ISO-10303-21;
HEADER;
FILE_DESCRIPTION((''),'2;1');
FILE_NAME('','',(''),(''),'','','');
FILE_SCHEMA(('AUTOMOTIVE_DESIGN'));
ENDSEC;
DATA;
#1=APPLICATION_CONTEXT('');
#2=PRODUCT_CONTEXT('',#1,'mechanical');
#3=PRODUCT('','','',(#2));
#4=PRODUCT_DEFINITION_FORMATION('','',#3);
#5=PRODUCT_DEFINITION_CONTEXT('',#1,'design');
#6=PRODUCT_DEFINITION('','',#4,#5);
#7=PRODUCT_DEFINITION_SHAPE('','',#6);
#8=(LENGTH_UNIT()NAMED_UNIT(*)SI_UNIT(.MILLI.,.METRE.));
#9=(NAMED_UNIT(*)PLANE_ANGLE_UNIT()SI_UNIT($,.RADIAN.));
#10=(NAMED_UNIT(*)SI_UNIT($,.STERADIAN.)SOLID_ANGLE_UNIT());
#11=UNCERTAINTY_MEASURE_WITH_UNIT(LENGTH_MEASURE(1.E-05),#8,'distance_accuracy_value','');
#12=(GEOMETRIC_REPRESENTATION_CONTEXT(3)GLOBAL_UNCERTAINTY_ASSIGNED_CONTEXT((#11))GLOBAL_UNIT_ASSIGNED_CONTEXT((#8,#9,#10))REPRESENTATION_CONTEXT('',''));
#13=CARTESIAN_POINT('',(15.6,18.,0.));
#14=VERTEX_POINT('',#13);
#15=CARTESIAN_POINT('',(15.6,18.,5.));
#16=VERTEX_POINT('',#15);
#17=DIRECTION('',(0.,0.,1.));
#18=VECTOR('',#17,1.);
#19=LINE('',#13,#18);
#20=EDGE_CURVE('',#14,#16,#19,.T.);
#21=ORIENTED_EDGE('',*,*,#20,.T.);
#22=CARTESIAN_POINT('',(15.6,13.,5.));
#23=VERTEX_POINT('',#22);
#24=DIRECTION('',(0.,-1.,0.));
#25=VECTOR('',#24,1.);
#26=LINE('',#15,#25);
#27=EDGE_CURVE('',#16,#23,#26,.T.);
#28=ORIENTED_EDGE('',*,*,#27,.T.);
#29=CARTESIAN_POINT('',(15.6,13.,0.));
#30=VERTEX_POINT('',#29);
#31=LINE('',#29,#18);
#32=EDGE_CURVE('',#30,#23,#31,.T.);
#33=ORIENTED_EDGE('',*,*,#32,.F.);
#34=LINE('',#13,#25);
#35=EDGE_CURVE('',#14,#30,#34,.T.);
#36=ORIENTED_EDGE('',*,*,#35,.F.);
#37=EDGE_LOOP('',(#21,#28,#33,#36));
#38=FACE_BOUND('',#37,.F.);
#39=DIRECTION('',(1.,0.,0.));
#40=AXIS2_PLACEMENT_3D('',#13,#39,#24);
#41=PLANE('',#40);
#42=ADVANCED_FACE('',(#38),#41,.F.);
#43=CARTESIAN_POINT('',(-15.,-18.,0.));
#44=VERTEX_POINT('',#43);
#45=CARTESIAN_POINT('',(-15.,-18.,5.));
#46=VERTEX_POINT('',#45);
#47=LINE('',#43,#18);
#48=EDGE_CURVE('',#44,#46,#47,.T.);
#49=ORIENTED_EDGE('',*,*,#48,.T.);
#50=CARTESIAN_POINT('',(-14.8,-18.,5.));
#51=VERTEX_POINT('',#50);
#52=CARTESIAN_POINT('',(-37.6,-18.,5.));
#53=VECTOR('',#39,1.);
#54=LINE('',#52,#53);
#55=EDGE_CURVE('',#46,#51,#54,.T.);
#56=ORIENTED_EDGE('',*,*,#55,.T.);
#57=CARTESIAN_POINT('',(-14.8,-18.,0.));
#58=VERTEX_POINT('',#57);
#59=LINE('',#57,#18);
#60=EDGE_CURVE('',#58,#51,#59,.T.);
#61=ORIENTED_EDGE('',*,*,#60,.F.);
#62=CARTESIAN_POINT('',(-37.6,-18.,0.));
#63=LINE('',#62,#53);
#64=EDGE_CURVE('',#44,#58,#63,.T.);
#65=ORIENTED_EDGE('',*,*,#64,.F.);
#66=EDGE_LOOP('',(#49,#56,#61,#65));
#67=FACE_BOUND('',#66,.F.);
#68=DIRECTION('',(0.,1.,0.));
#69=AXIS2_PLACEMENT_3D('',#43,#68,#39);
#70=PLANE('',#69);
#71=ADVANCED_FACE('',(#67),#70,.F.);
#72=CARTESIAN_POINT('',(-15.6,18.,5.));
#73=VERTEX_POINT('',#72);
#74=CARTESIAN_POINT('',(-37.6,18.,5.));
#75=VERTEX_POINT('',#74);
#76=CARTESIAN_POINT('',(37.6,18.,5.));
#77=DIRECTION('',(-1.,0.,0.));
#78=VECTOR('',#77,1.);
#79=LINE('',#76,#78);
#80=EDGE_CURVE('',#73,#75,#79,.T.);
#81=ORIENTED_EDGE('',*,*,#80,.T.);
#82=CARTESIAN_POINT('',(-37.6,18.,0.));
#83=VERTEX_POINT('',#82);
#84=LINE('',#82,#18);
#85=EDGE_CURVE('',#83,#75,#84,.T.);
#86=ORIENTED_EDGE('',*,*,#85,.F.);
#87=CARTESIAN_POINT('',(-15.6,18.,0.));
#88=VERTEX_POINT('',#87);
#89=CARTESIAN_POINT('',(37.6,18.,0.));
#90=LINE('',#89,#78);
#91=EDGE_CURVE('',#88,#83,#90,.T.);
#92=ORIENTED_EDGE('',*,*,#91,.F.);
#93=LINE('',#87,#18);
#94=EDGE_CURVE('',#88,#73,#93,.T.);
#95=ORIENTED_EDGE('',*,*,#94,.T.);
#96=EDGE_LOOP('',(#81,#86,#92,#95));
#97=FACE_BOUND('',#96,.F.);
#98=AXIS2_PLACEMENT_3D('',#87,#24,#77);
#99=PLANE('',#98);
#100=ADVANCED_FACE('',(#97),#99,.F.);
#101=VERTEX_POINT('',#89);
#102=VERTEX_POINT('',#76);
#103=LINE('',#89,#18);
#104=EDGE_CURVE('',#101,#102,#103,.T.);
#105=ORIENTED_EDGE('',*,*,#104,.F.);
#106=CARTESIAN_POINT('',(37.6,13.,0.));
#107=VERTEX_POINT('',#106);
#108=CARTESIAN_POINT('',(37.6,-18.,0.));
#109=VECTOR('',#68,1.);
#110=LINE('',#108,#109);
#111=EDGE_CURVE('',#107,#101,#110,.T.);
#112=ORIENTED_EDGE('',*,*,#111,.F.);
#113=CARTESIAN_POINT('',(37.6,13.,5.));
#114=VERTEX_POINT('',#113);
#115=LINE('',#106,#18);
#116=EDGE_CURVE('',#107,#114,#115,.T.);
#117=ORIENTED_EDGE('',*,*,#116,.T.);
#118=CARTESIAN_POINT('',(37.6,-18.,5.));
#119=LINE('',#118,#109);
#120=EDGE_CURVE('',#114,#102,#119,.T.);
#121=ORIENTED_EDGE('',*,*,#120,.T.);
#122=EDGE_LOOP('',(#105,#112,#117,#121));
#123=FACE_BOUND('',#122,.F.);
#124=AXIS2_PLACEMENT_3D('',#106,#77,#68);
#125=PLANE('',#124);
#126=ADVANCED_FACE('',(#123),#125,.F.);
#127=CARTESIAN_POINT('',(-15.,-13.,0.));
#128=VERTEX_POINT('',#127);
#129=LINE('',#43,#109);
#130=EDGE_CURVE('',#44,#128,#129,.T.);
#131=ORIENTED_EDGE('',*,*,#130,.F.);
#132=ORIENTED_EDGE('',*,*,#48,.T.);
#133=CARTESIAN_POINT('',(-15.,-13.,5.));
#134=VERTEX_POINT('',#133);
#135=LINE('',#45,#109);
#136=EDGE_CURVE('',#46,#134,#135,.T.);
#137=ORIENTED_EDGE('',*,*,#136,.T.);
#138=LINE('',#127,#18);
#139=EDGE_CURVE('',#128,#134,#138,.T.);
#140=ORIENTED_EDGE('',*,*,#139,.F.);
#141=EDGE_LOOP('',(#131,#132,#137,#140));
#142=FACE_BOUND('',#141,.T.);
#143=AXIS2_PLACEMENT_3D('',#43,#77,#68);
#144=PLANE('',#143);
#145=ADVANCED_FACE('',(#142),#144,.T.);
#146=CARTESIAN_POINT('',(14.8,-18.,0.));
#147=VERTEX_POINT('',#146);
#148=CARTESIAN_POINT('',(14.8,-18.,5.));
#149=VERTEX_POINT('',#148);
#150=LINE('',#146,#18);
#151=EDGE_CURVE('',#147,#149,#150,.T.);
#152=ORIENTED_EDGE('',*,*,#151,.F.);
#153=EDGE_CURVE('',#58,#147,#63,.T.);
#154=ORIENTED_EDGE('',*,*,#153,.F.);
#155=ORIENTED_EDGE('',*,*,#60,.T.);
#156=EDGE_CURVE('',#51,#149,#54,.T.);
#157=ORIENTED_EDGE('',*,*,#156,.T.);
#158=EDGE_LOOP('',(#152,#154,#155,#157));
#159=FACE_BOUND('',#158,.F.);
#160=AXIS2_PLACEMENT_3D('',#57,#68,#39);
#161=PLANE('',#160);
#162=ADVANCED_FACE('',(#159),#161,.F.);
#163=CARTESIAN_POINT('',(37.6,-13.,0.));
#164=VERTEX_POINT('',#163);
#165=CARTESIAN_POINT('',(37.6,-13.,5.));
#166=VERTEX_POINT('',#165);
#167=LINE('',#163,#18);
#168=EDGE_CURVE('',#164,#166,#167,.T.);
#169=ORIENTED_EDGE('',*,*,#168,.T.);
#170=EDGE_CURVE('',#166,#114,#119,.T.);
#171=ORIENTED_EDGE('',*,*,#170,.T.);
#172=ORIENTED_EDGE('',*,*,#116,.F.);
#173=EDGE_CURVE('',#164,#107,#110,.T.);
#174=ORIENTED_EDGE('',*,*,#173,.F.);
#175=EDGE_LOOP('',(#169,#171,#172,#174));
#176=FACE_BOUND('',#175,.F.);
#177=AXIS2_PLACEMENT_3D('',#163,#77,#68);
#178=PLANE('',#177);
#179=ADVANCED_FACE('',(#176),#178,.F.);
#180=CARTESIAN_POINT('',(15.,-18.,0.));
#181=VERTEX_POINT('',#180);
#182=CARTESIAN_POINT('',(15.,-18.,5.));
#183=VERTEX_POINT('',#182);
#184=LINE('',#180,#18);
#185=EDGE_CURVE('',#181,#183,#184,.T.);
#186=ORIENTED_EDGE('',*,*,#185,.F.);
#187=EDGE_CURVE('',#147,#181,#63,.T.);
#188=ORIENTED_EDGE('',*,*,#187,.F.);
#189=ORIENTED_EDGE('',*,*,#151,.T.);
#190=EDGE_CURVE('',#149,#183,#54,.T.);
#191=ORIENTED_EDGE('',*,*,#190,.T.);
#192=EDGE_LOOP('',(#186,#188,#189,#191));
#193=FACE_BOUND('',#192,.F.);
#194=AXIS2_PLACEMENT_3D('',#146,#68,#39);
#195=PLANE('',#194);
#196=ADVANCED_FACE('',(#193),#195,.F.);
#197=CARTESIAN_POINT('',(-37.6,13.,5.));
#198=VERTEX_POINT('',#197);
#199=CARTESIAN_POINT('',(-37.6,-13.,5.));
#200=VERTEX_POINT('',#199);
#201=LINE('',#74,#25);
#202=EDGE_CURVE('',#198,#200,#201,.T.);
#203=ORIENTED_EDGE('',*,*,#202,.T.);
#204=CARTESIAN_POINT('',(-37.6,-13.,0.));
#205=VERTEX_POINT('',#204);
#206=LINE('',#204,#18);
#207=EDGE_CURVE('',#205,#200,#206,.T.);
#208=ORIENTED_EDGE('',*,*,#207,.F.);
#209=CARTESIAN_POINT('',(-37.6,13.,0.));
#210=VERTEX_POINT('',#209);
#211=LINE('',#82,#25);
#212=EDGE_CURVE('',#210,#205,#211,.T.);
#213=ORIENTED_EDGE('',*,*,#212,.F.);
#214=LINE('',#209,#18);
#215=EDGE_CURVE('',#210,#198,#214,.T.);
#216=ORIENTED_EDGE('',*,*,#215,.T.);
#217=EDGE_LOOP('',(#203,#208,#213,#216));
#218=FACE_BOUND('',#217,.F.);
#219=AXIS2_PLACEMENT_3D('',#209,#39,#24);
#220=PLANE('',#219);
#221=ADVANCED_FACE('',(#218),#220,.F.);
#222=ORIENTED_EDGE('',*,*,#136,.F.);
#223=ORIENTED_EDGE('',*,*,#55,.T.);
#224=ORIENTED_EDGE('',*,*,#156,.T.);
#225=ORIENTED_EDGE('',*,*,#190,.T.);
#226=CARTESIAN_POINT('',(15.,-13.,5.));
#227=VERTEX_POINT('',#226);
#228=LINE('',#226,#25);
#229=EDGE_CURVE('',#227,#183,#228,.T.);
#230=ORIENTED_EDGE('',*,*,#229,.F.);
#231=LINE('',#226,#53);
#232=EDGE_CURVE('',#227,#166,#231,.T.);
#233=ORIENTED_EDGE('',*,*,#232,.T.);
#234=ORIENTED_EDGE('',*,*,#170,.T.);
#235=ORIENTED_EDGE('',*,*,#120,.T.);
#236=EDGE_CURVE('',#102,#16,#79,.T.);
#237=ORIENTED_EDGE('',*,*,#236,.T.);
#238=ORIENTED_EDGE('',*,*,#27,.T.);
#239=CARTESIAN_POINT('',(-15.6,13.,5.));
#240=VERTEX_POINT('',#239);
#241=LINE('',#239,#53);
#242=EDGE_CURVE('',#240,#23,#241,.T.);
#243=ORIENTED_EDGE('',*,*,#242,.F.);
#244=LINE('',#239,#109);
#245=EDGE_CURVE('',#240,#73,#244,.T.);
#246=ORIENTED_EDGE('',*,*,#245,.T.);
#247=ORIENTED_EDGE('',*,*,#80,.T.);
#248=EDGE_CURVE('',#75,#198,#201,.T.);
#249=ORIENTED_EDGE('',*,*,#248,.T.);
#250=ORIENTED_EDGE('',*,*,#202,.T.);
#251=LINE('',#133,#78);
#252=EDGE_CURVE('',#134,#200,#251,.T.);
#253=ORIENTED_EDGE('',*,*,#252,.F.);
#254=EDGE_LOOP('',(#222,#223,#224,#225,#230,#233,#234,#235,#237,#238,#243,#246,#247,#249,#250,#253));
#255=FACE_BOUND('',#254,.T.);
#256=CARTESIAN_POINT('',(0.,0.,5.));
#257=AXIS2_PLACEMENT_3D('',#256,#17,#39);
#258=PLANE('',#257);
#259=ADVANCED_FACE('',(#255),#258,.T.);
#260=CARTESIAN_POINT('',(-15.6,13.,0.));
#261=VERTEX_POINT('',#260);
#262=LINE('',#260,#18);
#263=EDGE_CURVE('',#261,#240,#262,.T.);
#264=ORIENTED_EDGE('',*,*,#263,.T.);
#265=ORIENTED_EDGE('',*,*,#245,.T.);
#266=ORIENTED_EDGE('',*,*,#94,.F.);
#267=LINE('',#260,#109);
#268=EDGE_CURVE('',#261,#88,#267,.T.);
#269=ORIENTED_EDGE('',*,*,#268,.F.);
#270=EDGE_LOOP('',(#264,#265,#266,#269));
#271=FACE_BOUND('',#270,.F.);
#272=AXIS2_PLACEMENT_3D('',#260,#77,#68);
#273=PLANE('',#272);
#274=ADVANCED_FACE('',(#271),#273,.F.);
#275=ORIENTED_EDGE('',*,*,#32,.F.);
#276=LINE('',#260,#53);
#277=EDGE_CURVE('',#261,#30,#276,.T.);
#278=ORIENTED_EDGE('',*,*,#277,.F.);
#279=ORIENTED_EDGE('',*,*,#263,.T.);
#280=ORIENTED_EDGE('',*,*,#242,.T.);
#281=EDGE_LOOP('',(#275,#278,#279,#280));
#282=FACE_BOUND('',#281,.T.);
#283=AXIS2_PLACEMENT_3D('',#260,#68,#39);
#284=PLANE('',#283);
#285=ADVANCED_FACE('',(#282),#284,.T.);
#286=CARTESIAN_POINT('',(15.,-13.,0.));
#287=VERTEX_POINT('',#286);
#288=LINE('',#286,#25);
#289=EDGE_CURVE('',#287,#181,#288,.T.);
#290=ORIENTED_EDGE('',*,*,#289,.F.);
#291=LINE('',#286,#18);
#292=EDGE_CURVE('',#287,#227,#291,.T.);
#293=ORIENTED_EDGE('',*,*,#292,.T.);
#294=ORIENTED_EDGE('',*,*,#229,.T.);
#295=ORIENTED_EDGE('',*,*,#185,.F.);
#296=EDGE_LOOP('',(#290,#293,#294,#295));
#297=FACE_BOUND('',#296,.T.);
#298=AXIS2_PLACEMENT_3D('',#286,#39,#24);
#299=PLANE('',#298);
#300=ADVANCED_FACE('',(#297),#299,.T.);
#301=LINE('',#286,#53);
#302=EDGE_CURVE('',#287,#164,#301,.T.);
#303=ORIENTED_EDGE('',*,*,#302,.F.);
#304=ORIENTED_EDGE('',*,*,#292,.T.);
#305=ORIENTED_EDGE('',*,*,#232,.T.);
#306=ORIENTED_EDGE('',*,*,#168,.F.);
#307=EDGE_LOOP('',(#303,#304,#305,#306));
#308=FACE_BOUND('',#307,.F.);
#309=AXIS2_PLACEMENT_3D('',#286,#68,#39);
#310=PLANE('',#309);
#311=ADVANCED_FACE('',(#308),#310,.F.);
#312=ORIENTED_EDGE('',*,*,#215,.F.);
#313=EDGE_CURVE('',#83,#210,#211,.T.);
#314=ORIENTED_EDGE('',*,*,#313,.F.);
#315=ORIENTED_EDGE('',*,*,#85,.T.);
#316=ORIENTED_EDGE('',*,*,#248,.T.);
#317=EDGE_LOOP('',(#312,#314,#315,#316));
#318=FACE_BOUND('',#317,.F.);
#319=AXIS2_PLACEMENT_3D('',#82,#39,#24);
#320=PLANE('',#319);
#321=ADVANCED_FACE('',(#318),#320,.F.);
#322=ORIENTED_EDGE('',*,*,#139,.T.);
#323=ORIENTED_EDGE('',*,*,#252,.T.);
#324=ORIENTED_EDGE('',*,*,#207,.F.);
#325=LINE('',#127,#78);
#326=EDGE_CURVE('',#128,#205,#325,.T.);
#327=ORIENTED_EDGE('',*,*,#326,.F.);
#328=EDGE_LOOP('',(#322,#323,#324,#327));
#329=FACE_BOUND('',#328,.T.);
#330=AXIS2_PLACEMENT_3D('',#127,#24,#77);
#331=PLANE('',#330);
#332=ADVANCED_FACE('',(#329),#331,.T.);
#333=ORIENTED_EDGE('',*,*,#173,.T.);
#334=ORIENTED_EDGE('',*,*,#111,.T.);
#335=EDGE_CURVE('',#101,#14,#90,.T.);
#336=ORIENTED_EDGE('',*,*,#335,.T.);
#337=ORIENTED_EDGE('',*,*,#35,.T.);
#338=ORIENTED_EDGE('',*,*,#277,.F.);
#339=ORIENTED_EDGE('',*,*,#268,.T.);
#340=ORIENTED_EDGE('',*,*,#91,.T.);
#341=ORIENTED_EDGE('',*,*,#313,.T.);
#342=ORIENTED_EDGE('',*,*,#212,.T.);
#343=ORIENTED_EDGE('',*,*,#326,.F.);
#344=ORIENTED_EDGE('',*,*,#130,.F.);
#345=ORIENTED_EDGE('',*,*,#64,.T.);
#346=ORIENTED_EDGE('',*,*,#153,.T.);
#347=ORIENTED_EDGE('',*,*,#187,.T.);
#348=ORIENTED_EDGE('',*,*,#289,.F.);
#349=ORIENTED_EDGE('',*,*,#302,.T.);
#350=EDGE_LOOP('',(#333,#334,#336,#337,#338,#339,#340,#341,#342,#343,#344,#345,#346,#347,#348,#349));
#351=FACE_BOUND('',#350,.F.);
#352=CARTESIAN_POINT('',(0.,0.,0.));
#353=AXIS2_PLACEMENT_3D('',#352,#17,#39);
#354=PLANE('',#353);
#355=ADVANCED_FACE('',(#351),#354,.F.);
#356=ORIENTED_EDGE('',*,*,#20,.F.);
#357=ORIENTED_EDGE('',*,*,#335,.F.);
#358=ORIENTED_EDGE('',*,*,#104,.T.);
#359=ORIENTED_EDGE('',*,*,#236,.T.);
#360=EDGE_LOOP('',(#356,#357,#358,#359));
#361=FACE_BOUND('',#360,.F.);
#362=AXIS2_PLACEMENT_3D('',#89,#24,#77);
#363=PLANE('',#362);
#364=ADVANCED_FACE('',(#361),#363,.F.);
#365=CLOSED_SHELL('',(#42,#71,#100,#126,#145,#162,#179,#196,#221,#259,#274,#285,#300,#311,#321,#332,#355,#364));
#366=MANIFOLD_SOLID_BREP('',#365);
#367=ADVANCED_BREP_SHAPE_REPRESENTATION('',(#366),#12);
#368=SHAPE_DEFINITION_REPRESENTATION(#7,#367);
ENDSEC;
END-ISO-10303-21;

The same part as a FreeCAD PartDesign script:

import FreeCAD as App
import Part
import Sketcher

V = App.Vector
Q = App.Units.Quantity


def add_polygon(sketch, points):
    """Adds a closed chain of lines whose ends are joined by coincident constraints."""
    first, n = sketch.GeometryCount, len(points)
    for a, b in zip(points, points[1:] + points[:1]):
        sketch.addGeometry(Part.LineSegment(App.Vector(*a, 0), App.Vector(*b, 0)), False)
    for i in range(n):
        sketch.addConstraint(Sketcher.Constraint("Coincident", first + i, 2, first + (i + 1) % n, 1))

doc = App.newDocument("Part")
params = doc.addObject("Spreadsheet::Sheet", "Params")
for row, (alias, value) in enumerate([
    ("sketch1_width", "30 mm"),
    ("sketch1_width2", "22 mm"),
    ("sketch1_height", "5 mm"),
    ("pad1_length", "5 mm"),
], start=1):
    params.set(f"A{row}", alias)
    params.set(f"B{row}", "=" + value)
    params.setAlias(f"B{row}", alias)

body = doc.addObject("PartDesign::Body", "Body")

# Sketch on XY plane
sketch1 = body.newObject("Sketcher::SketchObject", "Sketch")
sketch1.AttachmentSupport = (doc.getObject("XY_Plane"), [""])
sketch1.MapMode = "FlatFace"
add_polygon(sketch1, [(-15, -13), (-15, -18), (15, -18), (15, -13), (38, -13), (38, 18), (16, 18), (16, 13), (-16, 13), (-16, 18), (-38, 18), (-38, -13)])  # lines 0-11
sketch1.addConstraint([
    Sketcher.Constraint("Vertical", 0),
    Sketcher.Constraint("Horizontal", 1),
    Sketcher.Constraint("Vertical", 2),
    Sketcher.Constraint("Horizontal", 3),
    Sketcher.Constraint("Vertical", 4),
    Sketcher.Constraint("Horizontal", 5),
    Sketcher.Constraint("Vertical", 6),
    Sketcher.Constraint("Horizontal", 7),
    Sketcher.Constraint("Vertical", 8),
    Sketcher.Constraint("Horizontal", 9),
    Sketcher.Constraint("Vertical", 10),
    Sketcher.Constraint("Horizontal", 11),
    Sketcher.Constraint("Symmetric", 5, 2, 8, 2, -2),
    Sketcher.Constraint("Symmetric", 3, 2, 10, 2, -2),
    Sketcher.Constraint("Equal", 3, 11),
    Sketcher.Constraint("Equal", 2, 6),
    Sketcher.Constraint("DistanceX", 1, 1, 1, 2, Q("30 mm")),
    Sketcher.Constraint("DistanceX", 5, 2, 5, 1, Q("22 mm")),
    Sketcher.Constraint("DistanceY", 0, 2, 0, 1, Q("5 mm")),
    Sketcher.Constraint("DistanceY", 1, 2, 4, 2, Q("36 mm")),
    Sketcher.Constraint("DistanceX", 9, 2, 5, 2, Q("53.2 mm")),
    Sketcher.Constraint("DistanceY", 0, 2, -1, 1, Q("18 mm")),
])
sketch1.setExpression("Constraints[28]", "Params.sketch1_width")
sketch1.setExpression("Constraints[29]", "Params.sketch1_width2")
sketch1.setExpression("Constraints[30]", "Params.sketch1_height")
pad1 = body.newObject("PartDesign::Pad", "Pad")
pad1.Profile = sketch1
pad1.setExpression("Length", "Params.pad1_length")

doc.recompute()
